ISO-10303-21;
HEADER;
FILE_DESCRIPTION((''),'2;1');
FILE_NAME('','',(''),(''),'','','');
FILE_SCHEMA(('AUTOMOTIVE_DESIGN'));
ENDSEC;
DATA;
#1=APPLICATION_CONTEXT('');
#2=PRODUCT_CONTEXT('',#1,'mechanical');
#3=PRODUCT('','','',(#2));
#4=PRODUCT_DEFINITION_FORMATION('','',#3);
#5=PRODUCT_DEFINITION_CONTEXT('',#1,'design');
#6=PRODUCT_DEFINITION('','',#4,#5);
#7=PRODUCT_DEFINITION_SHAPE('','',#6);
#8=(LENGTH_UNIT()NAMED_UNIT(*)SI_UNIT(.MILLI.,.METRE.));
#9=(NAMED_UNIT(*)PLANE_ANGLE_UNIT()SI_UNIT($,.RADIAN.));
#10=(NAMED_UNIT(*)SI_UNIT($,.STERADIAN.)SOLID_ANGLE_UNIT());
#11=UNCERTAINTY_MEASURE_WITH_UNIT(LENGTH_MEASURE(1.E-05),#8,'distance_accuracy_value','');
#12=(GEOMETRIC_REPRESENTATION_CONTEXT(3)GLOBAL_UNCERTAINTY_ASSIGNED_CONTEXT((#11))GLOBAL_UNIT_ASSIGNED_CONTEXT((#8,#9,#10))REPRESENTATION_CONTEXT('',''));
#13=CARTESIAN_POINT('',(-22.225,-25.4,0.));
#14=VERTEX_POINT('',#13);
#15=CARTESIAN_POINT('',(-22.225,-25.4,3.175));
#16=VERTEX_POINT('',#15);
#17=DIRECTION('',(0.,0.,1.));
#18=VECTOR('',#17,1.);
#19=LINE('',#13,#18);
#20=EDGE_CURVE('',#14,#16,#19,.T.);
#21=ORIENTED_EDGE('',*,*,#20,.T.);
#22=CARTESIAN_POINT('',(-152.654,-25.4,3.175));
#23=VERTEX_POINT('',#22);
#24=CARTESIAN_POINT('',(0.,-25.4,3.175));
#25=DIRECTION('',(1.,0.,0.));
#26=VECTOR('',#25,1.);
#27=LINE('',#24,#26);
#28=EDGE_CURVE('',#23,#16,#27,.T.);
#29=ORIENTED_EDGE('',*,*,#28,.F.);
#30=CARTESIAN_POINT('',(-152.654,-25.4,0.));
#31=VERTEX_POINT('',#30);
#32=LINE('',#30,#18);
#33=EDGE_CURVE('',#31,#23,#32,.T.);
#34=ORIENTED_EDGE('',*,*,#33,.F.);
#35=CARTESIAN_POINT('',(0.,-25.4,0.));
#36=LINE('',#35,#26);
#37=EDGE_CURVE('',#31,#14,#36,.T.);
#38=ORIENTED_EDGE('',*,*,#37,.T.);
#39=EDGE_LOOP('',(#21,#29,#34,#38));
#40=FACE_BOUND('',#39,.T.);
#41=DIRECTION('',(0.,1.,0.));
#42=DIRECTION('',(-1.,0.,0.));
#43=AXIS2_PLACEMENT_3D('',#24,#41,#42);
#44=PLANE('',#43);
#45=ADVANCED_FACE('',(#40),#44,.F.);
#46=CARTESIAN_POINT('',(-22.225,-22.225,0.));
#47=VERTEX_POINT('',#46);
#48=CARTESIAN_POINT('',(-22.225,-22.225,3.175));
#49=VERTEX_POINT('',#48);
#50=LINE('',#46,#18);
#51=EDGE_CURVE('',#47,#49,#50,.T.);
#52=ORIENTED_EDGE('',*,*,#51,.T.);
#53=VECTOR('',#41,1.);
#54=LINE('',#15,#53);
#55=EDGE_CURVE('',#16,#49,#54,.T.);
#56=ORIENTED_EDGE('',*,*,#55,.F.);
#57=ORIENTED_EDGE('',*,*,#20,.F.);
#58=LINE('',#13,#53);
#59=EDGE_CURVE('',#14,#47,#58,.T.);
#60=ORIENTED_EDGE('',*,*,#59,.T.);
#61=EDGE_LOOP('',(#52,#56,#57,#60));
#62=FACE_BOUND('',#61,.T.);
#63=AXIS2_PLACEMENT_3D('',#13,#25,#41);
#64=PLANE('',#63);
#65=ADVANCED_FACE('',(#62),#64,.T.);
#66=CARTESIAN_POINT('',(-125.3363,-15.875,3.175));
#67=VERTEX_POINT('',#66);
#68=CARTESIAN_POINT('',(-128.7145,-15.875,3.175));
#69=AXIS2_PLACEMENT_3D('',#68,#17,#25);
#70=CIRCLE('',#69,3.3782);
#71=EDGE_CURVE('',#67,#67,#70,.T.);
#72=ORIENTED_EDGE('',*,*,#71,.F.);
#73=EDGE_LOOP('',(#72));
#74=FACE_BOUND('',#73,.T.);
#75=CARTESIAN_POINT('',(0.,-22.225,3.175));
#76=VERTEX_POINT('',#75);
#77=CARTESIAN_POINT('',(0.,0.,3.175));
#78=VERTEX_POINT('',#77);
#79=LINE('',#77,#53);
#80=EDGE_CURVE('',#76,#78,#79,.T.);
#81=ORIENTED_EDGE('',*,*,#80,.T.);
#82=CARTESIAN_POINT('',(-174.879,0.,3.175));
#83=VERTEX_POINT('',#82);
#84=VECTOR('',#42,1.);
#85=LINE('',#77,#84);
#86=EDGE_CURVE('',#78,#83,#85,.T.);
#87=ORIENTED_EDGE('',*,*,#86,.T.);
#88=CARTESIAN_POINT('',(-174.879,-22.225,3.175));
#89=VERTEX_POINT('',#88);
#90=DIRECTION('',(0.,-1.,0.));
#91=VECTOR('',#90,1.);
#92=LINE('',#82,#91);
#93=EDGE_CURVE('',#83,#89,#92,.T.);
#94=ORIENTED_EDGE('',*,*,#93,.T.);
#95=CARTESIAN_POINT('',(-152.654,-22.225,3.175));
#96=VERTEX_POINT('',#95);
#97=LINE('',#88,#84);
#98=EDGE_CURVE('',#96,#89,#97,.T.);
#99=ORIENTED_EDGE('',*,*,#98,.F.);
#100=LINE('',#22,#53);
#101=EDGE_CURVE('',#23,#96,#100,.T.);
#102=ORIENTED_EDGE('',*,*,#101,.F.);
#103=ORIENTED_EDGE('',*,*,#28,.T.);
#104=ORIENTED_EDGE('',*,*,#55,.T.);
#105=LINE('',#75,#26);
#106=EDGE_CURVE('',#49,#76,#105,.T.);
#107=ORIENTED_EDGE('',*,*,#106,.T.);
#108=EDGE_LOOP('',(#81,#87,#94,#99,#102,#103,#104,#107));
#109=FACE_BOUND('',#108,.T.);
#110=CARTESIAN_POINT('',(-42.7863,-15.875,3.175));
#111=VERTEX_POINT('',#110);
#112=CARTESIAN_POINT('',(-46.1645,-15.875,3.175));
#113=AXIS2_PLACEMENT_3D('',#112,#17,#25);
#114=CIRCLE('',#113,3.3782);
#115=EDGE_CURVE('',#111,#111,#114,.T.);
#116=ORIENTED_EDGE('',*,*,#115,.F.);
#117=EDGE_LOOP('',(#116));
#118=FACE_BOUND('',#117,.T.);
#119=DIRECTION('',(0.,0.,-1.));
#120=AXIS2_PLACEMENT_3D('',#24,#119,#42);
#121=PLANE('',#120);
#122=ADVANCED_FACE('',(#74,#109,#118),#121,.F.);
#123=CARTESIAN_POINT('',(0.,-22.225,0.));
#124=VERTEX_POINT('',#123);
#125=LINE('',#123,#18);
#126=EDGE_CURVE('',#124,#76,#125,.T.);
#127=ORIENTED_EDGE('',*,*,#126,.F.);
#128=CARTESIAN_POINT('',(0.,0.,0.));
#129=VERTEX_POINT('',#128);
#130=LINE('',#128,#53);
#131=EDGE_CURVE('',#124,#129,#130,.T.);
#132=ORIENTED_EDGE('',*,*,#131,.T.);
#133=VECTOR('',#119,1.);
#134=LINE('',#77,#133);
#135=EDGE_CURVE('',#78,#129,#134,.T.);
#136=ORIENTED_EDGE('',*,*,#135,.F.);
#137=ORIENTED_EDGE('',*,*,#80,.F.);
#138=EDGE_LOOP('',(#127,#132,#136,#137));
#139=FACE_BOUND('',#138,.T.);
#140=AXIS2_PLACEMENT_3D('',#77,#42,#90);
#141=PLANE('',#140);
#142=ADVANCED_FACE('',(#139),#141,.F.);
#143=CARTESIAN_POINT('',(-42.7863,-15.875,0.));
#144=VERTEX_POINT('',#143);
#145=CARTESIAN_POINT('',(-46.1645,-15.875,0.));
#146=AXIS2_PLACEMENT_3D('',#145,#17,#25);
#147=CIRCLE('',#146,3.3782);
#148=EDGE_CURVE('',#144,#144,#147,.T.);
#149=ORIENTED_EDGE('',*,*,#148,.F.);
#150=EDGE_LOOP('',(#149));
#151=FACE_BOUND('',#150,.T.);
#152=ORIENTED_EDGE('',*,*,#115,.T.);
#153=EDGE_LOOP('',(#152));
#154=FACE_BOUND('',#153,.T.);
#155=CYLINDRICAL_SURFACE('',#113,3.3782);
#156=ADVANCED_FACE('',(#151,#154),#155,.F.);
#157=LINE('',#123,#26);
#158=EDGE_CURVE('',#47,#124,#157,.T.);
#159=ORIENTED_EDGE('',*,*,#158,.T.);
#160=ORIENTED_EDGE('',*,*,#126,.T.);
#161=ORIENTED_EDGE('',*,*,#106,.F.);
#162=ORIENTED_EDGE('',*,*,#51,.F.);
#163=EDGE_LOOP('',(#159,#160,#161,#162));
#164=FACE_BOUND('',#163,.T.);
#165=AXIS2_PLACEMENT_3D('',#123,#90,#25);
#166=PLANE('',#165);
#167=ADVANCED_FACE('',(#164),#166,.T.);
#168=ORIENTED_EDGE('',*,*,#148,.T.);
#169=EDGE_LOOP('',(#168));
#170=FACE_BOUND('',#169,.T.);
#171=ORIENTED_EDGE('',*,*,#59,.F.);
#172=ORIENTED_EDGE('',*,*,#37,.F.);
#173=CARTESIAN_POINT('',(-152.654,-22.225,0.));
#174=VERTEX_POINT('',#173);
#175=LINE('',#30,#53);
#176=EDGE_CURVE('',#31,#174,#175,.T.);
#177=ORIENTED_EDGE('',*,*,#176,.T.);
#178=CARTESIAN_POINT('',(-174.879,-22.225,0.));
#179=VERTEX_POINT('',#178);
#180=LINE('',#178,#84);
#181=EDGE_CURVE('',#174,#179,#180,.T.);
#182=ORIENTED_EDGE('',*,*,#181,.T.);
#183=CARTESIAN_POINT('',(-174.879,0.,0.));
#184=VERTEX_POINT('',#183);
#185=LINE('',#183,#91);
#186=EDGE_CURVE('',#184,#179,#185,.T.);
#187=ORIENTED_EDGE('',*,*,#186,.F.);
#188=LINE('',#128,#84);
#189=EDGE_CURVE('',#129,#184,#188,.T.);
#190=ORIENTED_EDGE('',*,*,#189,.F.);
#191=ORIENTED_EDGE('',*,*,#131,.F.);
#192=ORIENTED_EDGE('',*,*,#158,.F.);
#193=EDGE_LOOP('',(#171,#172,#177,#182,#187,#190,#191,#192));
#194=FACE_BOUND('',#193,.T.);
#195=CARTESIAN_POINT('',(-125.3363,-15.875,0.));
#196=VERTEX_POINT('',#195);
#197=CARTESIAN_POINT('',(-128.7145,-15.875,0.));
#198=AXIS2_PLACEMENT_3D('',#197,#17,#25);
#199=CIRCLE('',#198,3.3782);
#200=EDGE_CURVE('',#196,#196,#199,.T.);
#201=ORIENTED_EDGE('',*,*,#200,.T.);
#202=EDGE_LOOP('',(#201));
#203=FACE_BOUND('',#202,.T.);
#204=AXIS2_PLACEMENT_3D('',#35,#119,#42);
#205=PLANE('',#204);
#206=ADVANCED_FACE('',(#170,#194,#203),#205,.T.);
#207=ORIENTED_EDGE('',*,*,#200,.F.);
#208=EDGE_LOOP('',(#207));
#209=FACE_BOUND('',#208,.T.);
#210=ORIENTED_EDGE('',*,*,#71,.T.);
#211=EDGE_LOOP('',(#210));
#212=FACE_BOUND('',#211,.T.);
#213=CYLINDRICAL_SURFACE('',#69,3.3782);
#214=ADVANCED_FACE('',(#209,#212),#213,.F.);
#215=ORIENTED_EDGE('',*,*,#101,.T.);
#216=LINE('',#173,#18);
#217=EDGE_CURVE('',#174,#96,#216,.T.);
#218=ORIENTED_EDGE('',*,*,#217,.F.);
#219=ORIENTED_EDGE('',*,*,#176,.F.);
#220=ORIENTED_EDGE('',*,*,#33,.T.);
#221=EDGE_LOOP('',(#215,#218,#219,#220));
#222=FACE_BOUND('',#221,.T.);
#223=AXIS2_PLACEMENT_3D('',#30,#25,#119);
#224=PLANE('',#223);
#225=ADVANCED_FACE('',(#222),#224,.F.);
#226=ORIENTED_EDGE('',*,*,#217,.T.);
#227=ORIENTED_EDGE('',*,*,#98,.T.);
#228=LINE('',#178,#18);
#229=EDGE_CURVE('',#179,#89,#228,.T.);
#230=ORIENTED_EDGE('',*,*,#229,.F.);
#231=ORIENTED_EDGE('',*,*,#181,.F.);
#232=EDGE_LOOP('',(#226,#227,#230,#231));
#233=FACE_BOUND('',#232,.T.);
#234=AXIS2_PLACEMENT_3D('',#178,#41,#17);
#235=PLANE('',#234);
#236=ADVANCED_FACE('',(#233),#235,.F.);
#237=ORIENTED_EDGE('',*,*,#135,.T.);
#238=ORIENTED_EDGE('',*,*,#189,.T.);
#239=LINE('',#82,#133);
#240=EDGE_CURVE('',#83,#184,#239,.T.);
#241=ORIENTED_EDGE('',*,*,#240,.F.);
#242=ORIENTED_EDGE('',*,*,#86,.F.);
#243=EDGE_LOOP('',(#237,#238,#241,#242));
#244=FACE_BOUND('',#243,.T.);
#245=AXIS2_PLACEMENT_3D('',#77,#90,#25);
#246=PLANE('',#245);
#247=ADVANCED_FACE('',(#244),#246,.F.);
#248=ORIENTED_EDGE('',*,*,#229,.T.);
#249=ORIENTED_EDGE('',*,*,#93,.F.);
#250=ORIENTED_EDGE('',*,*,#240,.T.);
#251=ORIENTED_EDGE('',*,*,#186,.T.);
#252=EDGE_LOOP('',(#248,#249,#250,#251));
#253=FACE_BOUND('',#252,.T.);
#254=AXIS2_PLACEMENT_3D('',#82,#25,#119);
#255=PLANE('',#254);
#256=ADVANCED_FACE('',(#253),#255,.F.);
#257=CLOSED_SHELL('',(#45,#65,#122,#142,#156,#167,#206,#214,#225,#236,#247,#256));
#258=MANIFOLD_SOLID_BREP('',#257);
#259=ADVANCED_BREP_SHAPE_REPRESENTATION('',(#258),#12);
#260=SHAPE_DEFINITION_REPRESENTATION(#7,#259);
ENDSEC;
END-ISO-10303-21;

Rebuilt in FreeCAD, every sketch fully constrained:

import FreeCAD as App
import Part
import Sketcher

V = App.Vector
Q = App.Units.Quantity

doc = App.newDocument("Part")
body = doc.addObject("PartDesign::Body", "Body")

# Sketch on XY plane
sketch1 = body.newObject("Sketcher::SketchObject", "Sketch")
sketch1.AttachmentSupport = (doc.getObject("XY_Plane"), [""])
sketch1.MapMode = "FlatFace"
sketch1.addGeometry([
    Part.LineSegment(V(-175, 0, 0), V(-175, -25, 0)),
    Part.LineSegment(V(-175, -25, 0), V(0, -25, 0)),
    Part.LineSegment(V(0, -25, 0), V(0, 0, 0)),
    Part.LineSegment(V(0, 0, 0), V(-175, 0, 0)),
], False)
sketch1.addConstraint([
    Sketcher.Constraint("Coincident", 0, 2, 1, 1),
    Sketcher.Constraint("Coincident", 1, 2, 2, 1),
    Sketcher.Constraint("Coincident", 2, 2, 3, 1),
    Sketcher.Constraint("Coincident", 3, 2, 0, 1),
    Sketcher.Constraint("Vertical", 0),
    Sketcher.Constraint("Horizontal", 1),
    Sketcher.Constraint("Vertical", 2),
    Sketcher.Constraint("Horizontal", 3),
    Sketcher.Constraint("Coincident", 2, 2, -1, 1),
    Sketcher.Constraint("DistanceY", 0, 2, 0, 1, Q("1 in")),
    Sketcher.Constraint("DistanceX", 1, 1, 1, 2, Q("6.885 in")),
])
pad1 = body.newObject("PartDesign::Pad", "Pad")
pad1.Profile = sketch1
pad1.Length = Q("0.125 in")

# Sketch on XY plane
sketch2 = body.newObject("Sketcher::SketchObject", "Sketch001")
sketch2.AttachmentSupport = (doc.getObject("XY_Plane"), [""])
sketch2.MapMode = "FlatFace"
sketch2.AttachmentOffset = App.Placement(V(0, 0, 0.125 * 25.4), App.Rotation())
sketch2.addGeometry([
    Part.LineSegment(V(-174.9, -22.2, 0), V(-174.9, -25.4, 0)),
    Part.LineSegment(V(-174.9, -25.4, 0), V(-152.7, -25.4, 0)),
    Part.LineSegment(V(-152.7, -25.4, 0), V(-152.7, -22.2, 0)),
    Part.LineSegment(V(-152.7, -22.2, 0), V(-174.9, -22.2, 0)),
], False)
sketch2.addConstraint([
    Sketcher.Constraint("Coincident", 0, 2, 1, 1),
    Sketcher.Constraint("Coincident", 1, 2, 2, 1),
    Sketcher.Constraint("Coincident", 2, 2, 3, 1),
    Sketcher.Constraint("Coincident", 3, 2, 0, 1),
    Sketcher.Constraint("Vertical", 0),
    Sketcher.Constraint("Horizontal", 1),
    Sketcher.Constraint("Vertical", 2),
    Sketcher.Constraint("Horizontal", 3),
    Sketcher.Constraint("DistanceY", 0, 2, -1, 1, Q("1 in")),
    Sketcher.Constraint("DistanceX", 1, 1, 1, 2, Q("0.875 in")),
    Sketcher.Constraint("DistanceY", 0, 2, 0, 1, Q("0.125 in")),
    Sketcher.Constraint("DistanceX", 1, 2, -1, 1, Q("6.01 in")),
])
pocket1 = body.newObject("PartDesign::Pocket", "Pocket")
pocket1.Profile = sketch2
pocket1.Type = "ThroughAll"
doc.recompute()

datumplane = body.newObject("PartDesign::Plane", "DatumPlane")
datumplane.AttachmentSupport = (doc.getObject("YZ_Plane"), [""])
datumplane.MapMode = "FlatFace"
datumplane.AttachmentOffset = App.Placement(V(0, 0, -3.4425 * 25.4), App.Rotation())
mirrored = body.newObject("PartDesign::Mirrored", "Mirrored")
mirrored.Originals = [pocket1]
mirrored.MirrorPlane = (datumplane, [""])
body.Tip = mirrored

# Sketch on XY plane
sketch3 = body.newObject("Sketcher::SketchObject", "Sketch002")
sketch3.AttachmentSupport = (doc.getObject("XY_Plane"), [""])
sketch3.MapMode = "FlatFace"
sketch3.AttachmentOffset = App.Placement(V(0, 0, 0.125 * 25.4), App.Rotation())
sketch3.addGeometry([
    Part.Circle(V(-46.2, -15.9, 0), V(0, 0, 1), 3.4),
    Part.Circle(V(-128.7, -15.9, 0), V(0, 0, 1), 3.4),
], False)
sketch3.addConstraint([
    Sketcher.Constraint("Equal", 0, 1),
    Sketcher.Constraint("Horizontal", 0, 3, 1, 3),
    Sketcher.Constraint("Diameter", 0, Q("0.266 in")),
    Sketcher.Constraint("DistanceX", 1, 3, 0, 3, Q("3.25 in")),
    Sketcher.Constraint("DistanceY", 0, 3, -1, 1, Q("0.625 in")),
    Sketcher.Constraint("DistanceX", 0, 3, -1, 1, Q("1.8175 in")),
])
doc.recompute()
hole = body.newObject("PartDesign::Hole", "Hole")
hole.Profile = sketch3
hole.ThreadType = "None"
hole.Diameter = Q("0.266 in")
hole.DepthType = "ThroughAll"

doc.recompute()
